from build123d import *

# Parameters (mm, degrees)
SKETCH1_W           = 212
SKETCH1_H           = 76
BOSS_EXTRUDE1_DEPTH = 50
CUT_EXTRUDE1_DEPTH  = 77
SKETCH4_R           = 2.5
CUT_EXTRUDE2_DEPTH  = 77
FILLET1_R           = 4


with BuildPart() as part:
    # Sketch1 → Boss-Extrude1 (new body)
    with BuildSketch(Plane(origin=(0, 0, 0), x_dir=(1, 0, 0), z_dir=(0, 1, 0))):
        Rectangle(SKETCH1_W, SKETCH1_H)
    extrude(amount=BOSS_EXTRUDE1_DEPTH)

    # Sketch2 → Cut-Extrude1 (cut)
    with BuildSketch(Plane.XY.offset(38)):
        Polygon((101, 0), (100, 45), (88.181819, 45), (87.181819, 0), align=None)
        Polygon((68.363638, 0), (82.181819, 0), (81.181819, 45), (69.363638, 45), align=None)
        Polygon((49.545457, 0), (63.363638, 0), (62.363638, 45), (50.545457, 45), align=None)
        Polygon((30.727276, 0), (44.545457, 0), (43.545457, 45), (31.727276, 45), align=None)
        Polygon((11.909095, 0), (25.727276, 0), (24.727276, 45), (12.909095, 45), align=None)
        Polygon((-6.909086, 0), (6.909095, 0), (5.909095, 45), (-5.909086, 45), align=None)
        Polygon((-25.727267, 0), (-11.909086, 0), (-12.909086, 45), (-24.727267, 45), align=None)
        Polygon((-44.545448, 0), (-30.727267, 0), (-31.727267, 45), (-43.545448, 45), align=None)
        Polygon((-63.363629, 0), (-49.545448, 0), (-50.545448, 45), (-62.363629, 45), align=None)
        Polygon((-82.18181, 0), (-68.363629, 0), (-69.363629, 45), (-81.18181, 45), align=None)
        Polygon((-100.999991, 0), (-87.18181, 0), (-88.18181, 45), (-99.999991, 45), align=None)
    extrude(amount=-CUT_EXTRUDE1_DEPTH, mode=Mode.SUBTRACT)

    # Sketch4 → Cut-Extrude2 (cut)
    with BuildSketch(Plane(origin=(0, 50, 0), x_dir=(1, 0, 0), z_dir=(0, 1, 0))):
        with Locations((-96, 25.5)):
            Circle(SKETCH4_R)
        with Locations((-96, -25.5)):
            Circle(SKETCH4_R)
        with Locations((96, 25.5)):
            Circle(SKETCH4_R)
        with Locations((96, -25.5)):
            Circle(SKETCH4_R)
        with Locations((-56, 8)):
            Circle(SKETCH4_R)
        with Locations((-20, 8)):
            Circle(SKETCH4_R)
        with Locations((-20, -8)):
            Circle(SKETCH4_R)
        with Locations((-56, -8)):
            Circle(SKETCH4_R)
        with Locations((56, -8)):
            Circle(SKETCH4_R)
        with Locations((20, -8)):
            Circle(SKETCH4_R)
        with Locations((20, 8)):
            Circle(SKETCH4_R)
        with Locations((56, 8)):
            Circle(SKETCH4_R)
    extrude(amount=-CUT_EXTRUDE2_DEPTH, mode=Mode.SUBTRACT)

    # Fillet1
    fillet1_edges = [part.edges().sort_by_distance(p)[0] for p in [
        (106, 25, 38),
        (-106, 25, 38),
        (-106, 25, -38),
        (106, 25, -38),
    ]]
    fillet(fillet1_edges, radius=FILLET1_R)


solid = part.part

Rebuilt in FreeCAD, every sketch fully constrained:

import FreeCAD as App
import Part
import Sketcher
from FreeCAD import Vector


def edges_at(feature, points):
    """Names of the edges that pass closest to the given points."""
    edges = feature.Shape.Edges
    near = lambda p: min(range(len(edges)), key=lambda i: edges[i].distToShape(Part.Vertex(*p))[0])
    return sorted({f"Edge{near(p) + 1}" for p in points})


def add_polygon(sketch, points):
    """Adds a closed chain of lines whose ends are joined by coincident constraints."""
    first, n = sketch.GeometryCount, len(points)
    for a, b in zip(points, points[1:] + points[:1]):
        sketch.addGeometry(Part.LineSegment(App.Vector(*a, 0), App.Vector(*b, 0)), False)
    for i in range(n):
        sketch.addConstraint(Sketcher.Constraint("Coincident", first + i, 2, first + (i + 1) % n, 1))

doc = App.newDocument("Part")
params = doc.addObject("Spreadsheet::Sheet", "Params")
for row, (alias, value) in enumerate([
    ("sketch1_width", "212 mm"),
    ("sketch1_height", "76 mm"),
    ("pad1_length", "50 mm"),
    ("pocket1_length", "77 mm"),
    ("sketch3_diameter", "5 mm"),
    ("pocket2_length", "77 mm"),
    ("fillet_radius", "4 mm"),
], start=1):
    params.set(f"A{row}", alias)
    params.set(f"B{row}", "=" + value)
    params.setAlias(f"B{row}", alias)

body = doc.addObject("PartDesign::Body", "Body")

# Sketch on XZ plane
sketch1 = body.newObject("Sketcher::SketchObject", "Sketch")
sketch1.AttachmentSupport = (doc.getObject("XZ_Plane"), [""])
sketch1.MapMode = "FlatFace"
add_polygon(sketch1, [(-106, -38), (-106, 38), (106, 38), (106, -38)])  # lines 0-3
sketch1.addConstraint([
    Sketcher.Constraint("Vertical", 0),
    Sketcher.Constraint("Horizontal", 1),
    Sketcher.Constraint("Vertical", 2),
    Sketcher.Constraint("Horizontal", 3),
    Sketcher.Constraint("Symmetric", 0, 2, 2, 2, -1, 1),
    Sketcher.Constraint("DistanceX", 1, 1, 1, 2, 212.0),
    Sketcher.Constraint("DistanceY", 0, 1, 0, 2, 76.0),
])
sketch1.setExpression("Constraints[9]", "Params.sketch1_width")
sketch1.setExpression("Constraints[10]", "Params.sketch1_height")
pad1 = body.newObject("PartDesign::Pad", "Pad")
pad1.Profile = sketch1
pad1.setExpression("Length", "Params.pad1_length")
pad1.Reversed = True

# Sketch on XY plane
sketch2 = body.newObject("Sketcher::SketchObject", "Sketch001")
sketch2.AttachmentSupport = (doc.getObject("XY_Plane"), [""])
sketch2.MapMode = "FlatFace"
sketch2.AttachmentOffset = App.Placement(Vector(0, 0, 38), App.Rotation())
add_polygon(sketch2, [(101, 0), (100, 45), (88, 45), (87, 0)])  # lines 0-3
add_polygon(sketch2, [(68, 0), (82, 0), (81, 45), (69, 45)])  # lines 4-7
add_polygon(sketch2, [(50, 0), (63, 0), (62, 45), (51, 45)])  # lines 8-11
add_polygon(sketch2, [(31, 0), (45, 0), (44, 45), (32, 45)])  # lines 12-15
add_polygon(sketch2, [(12, 0), (26, 0), (25, 45), (13, 45)])  # lines 16-19
add_polygon(sketch2, [(-7, 0), (7, 0), (6, 45), (-6, 45)])  # lines 20-23
add_polygon(sketch2, [(-26, 0), (-12, 0), (-13, 45), (-25, 45)])  # lines 24-27
add_polygon(sketch2, [(-45, 0), (-31, 0), (-32, 45), (-44, 45)])  # lines 28-31
add_polygon(sketch2, [(-63, 0), (-50, 0), (-51, 45), (-62, 45)])  # lines 32-35
add_polygon(sketch2, [(-82, 0), (-68, 0), (-69, 45), (-81, 45)])  # lines 36-39
add_polygon(sketch2, [(-101, 0), (-87, 0), (-88, 45), (-100, 45)])  # lines 40-43
sketch2.addConstraint([
    Sketcher.Constraint("Horizontal", 1),
    Sketcher.Constraint("Horizontal", 3),
    Sketcher.Constraint("Horizontal", 4),
    Sketcher.Constraint("Horizontal", 6),
    Sketcher.Constraint("Horizontal", 8),
    Sketcher.Constraint("Horizontal", 10),
    Sketcher.Constraint("Horizontal", 12),
    Sketcher.Constraint("Horizontal", 14),
    Sketcher.Constraint("Horizontal", 16),
    Sketcher.Constraint("Horizontal", 18),
    Sketcher.Constraint("Horizontal", 20),
    Sketcher.Constraint("Horizontal", 22),
    Sketcher.Constraint("Horizontal", 24),
    Sketcher.Constraint("Horizontal", 26),
    Sketcher.Constraint("Horizontal", 28),
    Sketcher.Constraint("Horizontal", 30),
    Sketcher.Constraint("Horizontal", 32),
    Sketcher.Constraint("Horizontal", 34),
    Sketcher.Constraint("Horizontal", 36),
    Sketcher.Constraint("Horizontal", 38),
    Sketcher.Constraint("Horizontal", 40),
    Sketcher.Constraint("Horizontal", 42),
    Sketcher.Constraint("Symmetric", 20, 2, 23, 2, -1, 1),
    Sketcher.Constraint("Symmetric", 19, 2, 24, 2, -1, 1),
    Sketcher.Constraint("Symmetric", 15, 2, 28, 2, -1, 1),
    Sketcher.Constraint("Symmetric", 11, 2, 32, 2, -1, 1),
    Sketcher.Constraint("Symmetric", 7, 2, 36, 2, -1, 1),
    Sketcher.Constraint("Symmetric", 2, 2, 40, 2, -1, 1),
    Sketcher.Constraint("Symmetric", 18, 2, 25, 2, -2),
    Sketcher.Constraint("Symmetric", 16, 2, 27, 2, -2),
    Sketcher.Constraint("Symmetric", 14, 2, 29, 2, -2),
    Sketcher.Constraint("Symmetric", 12, 2, 31, 2, -2),
    Sketcher.Constraint("Symmetric", 10, 2, 33, 2, -2),
    Sketcher.Constraint("Symmetric", 8, 2, 35, 2, -2),
    Sketcher.Constraint("Symmetric", 6, 2, 37, 2, -2),
    Sketcher.Constraint("Symmetric", 4, 2, 39, 2, -2),
    Sketcher.Constraint("Symmetric", 1, 2, 41, 2, -2),
    Sketcher.Constraint("Symmetric", 3, 2, 43, 2, -2),
    Sketcher.Constraint("Parallel", 0, 5),
    Sketcher.Constraint("Parallel", 2, 7),
    Sketcher.Constraint("Parallel", 5, 9),
    Sketcher.Constraint("Parallel", 7, 11),
    Sketcher.Constraint("Parallel", 9, 13),
    Sketcher.Constraint("Parallel", 11, 15),
    Sketcher.Constraint("Parallel", 13, 17),
    Sketcher.Constraint("Parallel", 15, 19),
    Sketcher.Constraint("Parallel", 17, 21),
    Sketcher.Constraint("Parallel", 19, 23),
    Sketcher.Constraint("Parallel", 21, 25),
    Sketcher.Constraint("Parallel", 23, 27),
    Sketcher.Constraint("Parallel", 27, 31),
    Sketcher.Constraint("Parallel", 31, 35),
    Sketcher.Constraint("Parallel", 35, 39),
    Sketcher.Constraint("Parallel", 39, 43),
    Sketcher.Constraint("Horizontal", 1, 2, 5, 2),
    Sketcher.Constraint("Horizontal", 6, 2, 9, 2),
    Sketcher.Constraint("Horizontal", 10, 2, 13, 2),
    Sketcher.Constraint("Horizontal", 14, 2, 17, 2),
    Sketcher.Constraint("Horizontal", 18, 2, 21, 2),
    Sketcher.Constraint("Equal", 3, 4),
    Sketcher.Constraint("Equal", 4, 8),
    Sketcher.Constraint("Equal", 8, 12),
    Sketcher.Constraint("Equal", 12, 16),
    Sketcher.Constraint("Equal", 16, 20),
    Sketcher.Constraint("DistanceX", -1, 1, 0, 2, 100.0),
    Sketcher.Constraint("DistanceY", -1, 1, 0, 2, 45.0),
    Sketcher.Constraint("DistanceX", -1, 1, 3, 2, 101.0),
    Sketcher.Constraint("DistanceX", 4, 2, 2, 2, 5.0),
    Sketcher.Constraint("DistanceX", 8, 2, 7, 2, 5.0),
    Sketcher.Constraint("DistanceX", 12, 2, 11, 2, 5.0),
    Sketcher.Constraint("DistanceX", 16, 2, 15, 2, 5.0),
    Sketcher.Constraint("DistanceX", 20, 2, 19, 2, 5.0),
])
pocket1 = body.newObject("PartDesign::Pocket", "Pocket")
pocket1.Profile = sketch2
pocket1.setExpression("Length", "Params.pocket1_length")

# Sketch on XZ plane
sketch3 = body.newObject("Sketcher::SketchObject", "Sketch002")
sketch3.AttachmentSupport = (doc.getObject("XZ_Plane"), [""])
sketch3.MapMode = "FlatFace"
sketch3.AttachmentOffset = App.Placement(Vector(0, 0, -50), App.Rotation())
sketch3.addGeometry([
    Part.Circle(Vector(-96, -25.5, 0), Vector(0, 0, 1), 2.5),  # 0
    Part.Circle(Vector(-96, 25.5, 0), Vector(0, 0, 1), 2.5),  # 1
    Part.Circle(Vector(96, -25.5, 0), Vector(0, 0, 1), 2.5),  # 2
    Part.Circle(Vector(96, 25.5, 0), Vector(0, 0, 1), 2.5),  # 3
    Part.Circle(Vector(-56, -8, 0), Vector(0, 0, 1), 2.5),  # 4
    Part.Circle(Vector(-20, -8, 0), Vector(0, 0, 1), 2.5),  # 5
    Part.Circle(Vector(-20, 8, 0), Vector(0, 0, 1), 2.5),  # 6
    Part.Circle(Vector(-56, 8, 0), Vector(0, 0, 1), 2.5),  # 7
    Part.Circle(Vector(56, 8, 0), Vector(0, 0, 1), 2.5),  # 8
    Part.Circle(Vector(20, 8, 0), Vector(0, 0, 1), 2.5),  # 9
    Part.Circle(Vector(20, -8, 0), Vector(0, 0, 1), 2.5),  # 10
    Part.Circle(Vector(56, -8, 0), Vector(0, 0, 1), 2.5),  # 11
], False)
sketch3.addConstraint([
    Sketcher.Constraint("Equal", 0, 1),
    Sketcher.Constraint("Equal", 1, 2),
    Sketcher.Constraint("Equal", 2, 3),
    Sketcher.Constraint("Equal", 3, 4),
    Sketcher.Constraint("Equal", 4, 5),
    Sketcher.Constraint("Equal", 5, 6),
    Sketcher.Constraint("Equal", 6, 7),
    Sketcher.Constraint("Equal", 7, 8),
    Sketcher.Constraint("Equal", 8, 9),
    Sketcher.Constraint("Equal", 9, 10),
    Sketcher.Constraint("Equal", 10, 11),
    Sketcher.Constraint("Symmetric", 1, 3, 2, 3, -1, 1),
    Sketcher.Constraint("Symmetric", 0, 3, 3, 3, -1, 1),
    Sketcher.Constraint("Symmetric", 4, 3, 8, 3, -1, 1),
    Sketcher.Constraint("Symmetric", 5, 3, 9, 3, -1, 1),
    Sketcher.Constraint("Symmetric", 6, 3, 10, 3, -1, 1),
    Sketcher.Constraint("Symmetric", 7, 3, 11, 3, -1, 1),
    Sketcher.Constraint("Symmetric", 0, 3, 2, 3, -2),
    Sketcher.Constraint("Symmetric", 7, 3, 8, 3, -2),
    Sketcher.Constraint("Symmetric", 6, 3, 9, 3, -2),
    Sketcher.Constraint("Horizontal", 4, 3, 5, 3),
    Sketcher.Constraint("Diameter", 0, 5.0),
    Sketcher.Constraint("DistanceX", 0, 3, -1, 1, 96.0),
    Sketcher.Constraint("DistanceX", 4, 3, -1, 1, 56.0),
    Sketcher.Constraint("DistanceY", 4, 3, -1, 1, 8.0),
    Sketcher.Constraint("DistanceX", 5, 3, -1, 1, 20.0),
    Sketcher.Constraint("DistanceY", 0, 3, 1, 3, 51.0),
])
sketch3.setExpression("Constraints[21]", "Params.sketch3_diameter")
pocket2 = body.newObject("PartDesign::Pocket", "Pocket001")
pocket2.Profile = sketch3
pocket2.setExpression("Length", "Params.pocket2_length")
pocket2.Reversed = True
doc.recompute()

fillet = body.newObject("PartDesign::Fillet", "Fillet")
fillet.Base = (pocket2, edges_at(pocket2, [
    (106, 25, 38),
    (-106, 25, 38),
    (-106, 25, -38),
    (106, 25, -38),
]))
fillet.setExpression("Radius", "Params.fillet_radius")

doc.recompute()
